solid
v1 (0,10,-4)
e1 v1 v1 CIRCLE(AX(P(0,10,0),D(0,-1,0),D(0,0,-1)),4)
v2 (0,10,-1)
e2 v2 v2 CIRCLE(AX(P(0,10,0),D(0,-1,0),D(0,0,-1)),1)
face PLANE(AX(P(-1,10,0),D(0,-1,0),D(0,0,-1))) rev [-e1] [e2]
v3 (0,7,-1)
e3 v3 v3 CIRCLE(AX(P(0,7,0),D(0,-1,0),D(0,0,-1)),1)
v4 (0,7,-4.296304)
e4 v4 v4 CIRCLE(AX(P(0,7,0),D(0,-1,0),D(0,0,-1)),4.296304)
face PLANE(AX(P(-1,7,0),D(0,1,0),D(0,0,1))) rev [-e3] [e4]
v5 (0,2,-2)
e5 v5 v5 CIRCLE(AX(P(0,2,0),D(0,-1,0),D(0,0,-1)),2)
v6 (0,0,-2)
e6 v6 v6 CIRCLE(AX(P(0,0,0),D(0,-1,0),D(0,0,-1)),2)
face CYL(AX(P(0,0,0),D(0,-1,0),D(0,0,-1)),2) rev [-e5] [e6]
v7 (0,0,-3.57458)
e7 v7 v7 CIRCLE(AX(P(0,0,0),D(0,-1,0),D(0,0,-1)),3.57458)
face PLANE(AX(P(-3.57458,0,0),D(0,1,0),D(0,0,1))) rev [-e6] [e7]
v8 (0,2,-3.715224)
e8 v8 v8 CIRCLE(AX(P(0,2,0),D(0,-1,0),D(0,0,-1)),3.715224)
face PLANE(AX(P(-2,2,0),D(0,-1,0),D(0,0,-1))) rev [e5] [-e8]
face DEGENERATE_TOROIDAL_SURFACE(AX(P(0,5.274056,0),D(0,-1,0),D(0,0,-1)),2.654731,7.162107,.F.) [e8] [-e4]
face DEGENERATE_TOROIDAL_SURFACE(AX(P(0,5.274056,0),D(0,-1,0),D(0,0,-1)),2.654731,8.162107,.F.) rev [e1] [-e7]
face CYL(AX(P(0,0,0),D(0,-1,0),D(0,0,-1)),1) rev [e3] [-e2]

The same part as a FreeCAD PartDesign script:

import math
import FreeCAD as App
import Part
import Sketcher

V = App.Vector
Q = App.Units.Quantity

doc = App.newDocument("Part")
body = doc.addObject("PartDesign::Body", "Body")

sketch1 = doc.addObject("Sketcher::SketchObject", "Sketch")
body.addObject(sketch1)
sketch1.AttachmentSupport = (doc.XY_Plane, [""])
sketch1.MapMode = "FlatFace"
sketch1.addGeometry([
    Part.LineSegment(V(-1, 10, 0), V(-4, 10, 0)),
    Part.ArcOfCircle(Part.Circle(V(2.7, 5.3, 0), V(0, 0, 1), 8.2), math.radians(145), math.radians(220)),
    Part.LineSegment(V(-3.6, 0, 0), V(-2, 0, 0)),
    Part.LineSegment(V(-2, 0, 0), V(-2, 2, 0)),
    Part.LineSegment(V(-2, 2, 0), V(-3.7, 2, 0)),
    Part.ArcOfCircle(Part.Circle(V(2.7, 5.3, 0), V(0, 0, 1), 7.2), math.radians(166), math.radians(207)),
    Part.LineSegment(V(-4.3, 7, 0), V(-1, 7, 0)),
    Part.LineSegment(V(-1, 7, 0), V(-1, 10, 0)),
], False)
sketch1.addConstraint([
    Sketcher.Constraint("Coincident", 0, 2, 1, 1),
    Sketcher.Constraint("Coincident", 1, 2, 2, 1),
    Sketcher.Constraint("Coincident", 2, 2, 3, 1),
    Sketcher.Constraint("Coincident", 3, 2, 4, 1),
    Sketcher.Constraint("Coincident", 4, 2, 5, 2),
    Sketcher.Constraint("Coincident", 5, 1, 6, 1),
    Sketcher.Constraint("Coincident", 6, 2, 7, 1),
    Sketcher.Constraint("Coincident", 7, 2, 0, 1),
    Sketcher.Constraint("Horizontal", 0),
    Sketcher.Constraint("Horizontal", 2),
    Sketcher.Constraint("Vertical", 3),
    Sketcher.Constraint("Horizontal", 4),
    Sketcher.Constraint("Horizontal", 6),
    Sketcher.Constraint("Vertical", 7),
    Sketcher.Constraint("Coincident", 5, 3, 1, 3),
    Sketcher.Constraint("PointOnObject", 1, 2, -1),
    Sketcher.Constraint("Equal", 0, 7),
    Sketcher.Constraint("DistanceX", 0, 2, 0, 1, Q("3 mm")),
    Sketcher.Constraint("DistanceY", 3, 1, 3, 2, Q("2 mm")),
    Sketcher.Constraint("DistanceX", 0, 2, -1, 1, Q("4 mm")),
    Sketcher.Constraint("DistanceY", -1, 1, 0, 2, Q("10 mm")),
    Sketcher.Constraint("DistanceX", 2, 2, -1, 1, Q("2 mm")),
    Sketcher.Constraint("Radius", 1, Q("8.162107 mm")),
    Sketcher.Constraint("Radius", 5, Q("7.162107 mm")),
    Sketcher.Constraint("DistanceX", 2, 1, 2, 2, Q("1.57458 mm")),
])
revolution = doc.addObject("PartDesign::Revolution", "Revolution")
body.addObject(revolution)
revolution.Profile = sketch1
revolution.ReferenceAxis = (sketch1, ["V_Axis"])
revolution.Angle = 360

doc.recompute()
